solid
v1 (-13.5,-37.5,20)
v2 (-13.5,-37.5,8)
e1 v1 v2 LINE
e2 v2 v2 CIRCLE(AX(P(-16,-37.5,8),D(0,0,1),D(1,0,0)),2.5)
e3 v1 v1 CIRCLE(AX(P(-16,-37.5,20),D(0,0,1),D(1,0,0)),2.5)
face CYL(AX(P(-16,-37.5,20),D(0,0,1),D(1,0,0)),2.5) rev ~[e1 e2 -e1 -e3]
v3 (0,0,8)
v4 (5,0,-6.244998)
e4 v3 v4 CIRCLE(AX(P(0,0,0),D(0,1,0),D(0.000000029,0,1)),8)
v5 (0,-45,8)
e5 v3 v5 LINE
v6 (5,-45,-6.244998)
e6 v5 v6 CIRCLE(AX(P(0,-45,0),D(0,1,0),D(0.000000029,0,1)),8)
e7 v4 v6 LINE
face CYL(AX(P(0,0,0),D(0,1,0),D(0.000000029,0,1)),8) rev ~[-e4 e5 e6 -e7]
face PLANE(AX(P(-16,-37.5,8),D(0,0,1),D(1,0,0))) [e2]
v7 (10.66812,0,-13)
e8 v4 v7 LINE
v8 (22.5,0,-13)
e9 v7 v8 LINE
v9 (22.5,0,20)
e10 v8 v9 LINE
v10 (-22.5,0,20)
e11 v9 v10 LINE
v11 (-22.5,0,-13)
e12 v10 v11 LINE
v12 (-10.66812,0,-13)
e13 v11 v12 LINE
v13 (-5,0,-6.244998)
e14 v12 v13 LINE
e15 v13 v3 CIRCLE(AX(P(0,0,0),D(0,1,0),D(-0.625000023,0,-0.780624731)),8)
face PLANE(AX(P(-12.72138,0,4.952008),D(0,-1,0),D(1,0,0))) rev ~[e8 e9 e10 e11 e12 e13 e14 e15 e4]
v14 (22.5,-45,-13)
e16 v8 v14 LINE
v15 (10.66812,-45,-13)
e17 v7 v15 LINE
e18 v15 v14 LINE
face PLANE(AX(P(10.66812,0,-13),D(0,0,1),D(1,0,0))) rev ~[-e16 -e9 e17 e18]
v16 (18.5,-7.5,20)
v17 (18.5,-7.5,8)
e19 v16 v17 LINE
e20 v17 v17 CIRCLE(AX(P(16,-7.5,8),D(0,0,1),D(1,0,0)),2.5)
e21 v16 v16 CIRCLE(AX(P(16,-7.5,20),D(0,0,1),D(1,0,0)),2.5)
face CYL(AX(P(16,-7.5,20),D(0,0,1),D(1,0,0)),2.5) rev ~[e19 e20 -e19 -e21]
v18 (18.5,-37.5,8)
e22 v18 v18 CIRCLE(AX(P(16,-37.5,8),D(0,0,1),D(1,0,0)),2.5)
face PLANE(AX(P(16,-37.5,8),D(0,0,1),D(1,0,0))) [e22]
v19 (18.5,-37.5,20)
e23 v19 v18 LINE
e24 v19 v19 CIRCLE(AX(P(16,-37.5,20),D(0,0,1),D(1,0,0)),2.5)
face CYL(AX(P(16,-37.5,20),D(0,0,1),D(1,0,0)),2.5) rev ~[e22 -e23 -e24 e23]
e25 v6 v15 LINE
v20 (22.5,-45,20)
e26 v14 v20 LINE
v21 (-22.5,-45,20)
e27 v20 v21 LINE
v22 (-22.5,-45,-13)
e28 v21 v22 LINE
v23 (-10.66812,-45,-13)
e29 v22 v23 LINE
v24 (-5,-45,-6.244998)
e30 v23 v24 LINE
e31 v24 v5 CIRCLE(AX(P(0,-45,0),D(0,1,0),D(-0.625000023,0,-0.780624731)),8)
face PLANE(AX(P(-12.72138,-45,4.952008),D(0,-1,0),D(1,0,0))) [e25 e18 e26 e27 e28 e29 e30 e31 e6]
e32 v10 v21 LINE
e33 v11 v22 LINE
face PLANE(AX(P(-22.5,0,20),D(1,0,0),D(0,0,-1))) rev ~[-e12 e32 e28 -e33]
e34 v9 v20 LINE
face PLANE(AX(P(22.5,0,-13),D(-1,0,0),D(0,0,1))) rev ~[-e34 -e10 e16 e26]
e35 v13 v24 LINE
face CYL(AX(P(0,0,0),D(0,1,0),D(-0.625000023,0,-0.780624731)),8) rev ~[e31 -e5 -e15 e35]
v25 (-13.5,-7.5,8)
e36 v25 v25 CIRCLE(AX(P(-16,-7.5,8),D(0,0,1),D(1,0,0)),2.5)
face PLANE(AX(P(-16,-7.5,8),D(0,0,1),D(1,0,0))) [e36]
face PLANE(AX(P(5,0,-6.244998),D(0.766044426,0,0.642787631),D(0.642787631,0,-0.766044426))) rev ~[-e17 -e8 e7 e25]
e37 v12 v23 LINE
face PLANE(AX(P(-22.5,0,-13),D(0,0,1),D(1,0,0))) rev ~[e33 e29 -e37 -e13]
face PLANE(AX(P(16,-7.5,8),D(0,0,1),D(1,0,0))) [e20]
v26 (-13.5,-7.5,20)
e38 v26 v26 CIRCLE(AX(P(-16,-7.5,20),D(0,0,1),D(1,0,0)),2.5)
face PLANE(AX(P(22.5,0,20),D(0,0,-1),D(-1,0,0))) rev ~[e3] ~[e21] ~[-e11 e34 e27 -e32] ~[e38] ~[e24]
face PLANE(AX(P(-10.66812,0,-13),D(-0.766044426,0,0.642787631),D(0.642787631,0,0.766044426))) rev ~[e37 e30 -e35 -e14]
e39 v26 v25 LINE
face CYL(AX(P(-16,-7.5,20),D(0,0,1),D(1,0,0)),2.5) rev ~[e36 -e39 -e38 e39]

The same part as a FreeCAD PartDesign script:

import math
import FreeCAD as App
import Part
import Sketcher
from FreeCAD import Vector
Q = App.Units.Quantity

doc = App.newDocument("Part")
body = doc.addObject("PartDesign::Body", "Body")

sketch1 = body.newObject("Sketcher::SketchObject", "Sketch")
sketch1.AttachmentSupport = (doc.getObject("XZ_Plane"), [""])
sketch1.MapMode = "FlatFace"
sketch1.addGeometry(Part.LineSegment(Vector(-22, 20, 0), Vector(-22, -13, 0)), False)
sketch1.addGeometry(Part.LineSegment(Vector(-22, -13, 0), Vector(-11, -13, 0)), False)
sketch1.addGeometry(Part.LineSegment(Vector(-11, -13, 0), Vector(-5, -6, 0)), False)
sketch1.addGeometry(Part.ArcOfCircle(Part.Circle(Vector(0, 0, 0), Vector(0, 0, 1), 8), math.radians(90), math.radians(231)), False)
sketch1.addGeometry(Part.ArcOfCircle(Part.Circle(Vector(0, 0, 0), Vector(0, 0, 1), 8), math.radians(-51), math.radians(90)), False)
sketch1.addGeometry(Part.LineSegment(Vector(5, -6, 0), Vector(11, -13, 0)), False)
sketch1.addGeometry(Part.LineSegment(Vector(11, -13, 0), Vector(22, -13, 0)), False)
sketch1.addGeometry(Part.LineSegment(Vector(22, -13, 0), Vector(22, 20, 0)), False)
sketch1.addGeometry(Part.LineSegment(Vector(22, 20, 0), Vector(-22, 20, 0)), False)
sketch1.addConstraint(Sketcher.Constraint("Coincident", 0, 2, 1, 1))
sketch1.addConstraint(Sketcher.Constraint("Coincident", 1, 2, 2, 1))
sketch1.addConstraint(Sketcher.Constraint("Coincident", 2, 2, 3, 2))
sketch1.addConstraint(Sketcher.Constraint("Tangent", 3, 1, 4, 2))
sketch1.addConstraint(Sketcher.Constraint("Coincident", 4, 1, 5, 1))
sketch1.addConstraint(Sketcher.Constraint("Coincident", 5, 2, 6, 1))
sketch1.addConstraint(Sketcher.Constraint("Coincident", 6, 2, 7, 1))
sketch1.addConstraint(Sketcher.Constraint("Coincident", 7, 2, 8, 1))
sketch1.addConstraint(Sketcher.Constraint("Coincident", 8, 2, 0, 1))
sketch1.addConstraint(Sketcher.Constraint("Vertical", 0))
sketch1.addConstraint(Sketcher.Constraint("Horizontal", 1))
sketch1.addConstraint(Sketcher.Constraint("Horizontal", 6))
sketch1.addConstraint(Sketcher.Constraint("Vertical", 7))
sketch1.addConstraint(Sketcher.Constraint("Horizontal", 8))
sketch1.addConstraint(Sketcher.Constraint("Coincident", 3, 3, -1, 1))
sketch1.addConstraint(Sketcher.Constraint("Equal", 3, 4))
sketch1.addConstraint(Sketcher.Constraint("Symmetric", 1, 2, 5, 2, -2))
sketch1.addConstraint(Sketcher.Constraint("PointOnObject", 3, 1, -2))
sketch1.addConstraint(Sketcher.Constraint("Horizontal", 2, 2, 4, 1))
sketch1.addConstraint(Sketcher.Constraint("Equal", 1, 6))
sketch1.addConstraint(Sketcher.Constraint("Radius", 3, Q("8 mm")))
sketch1.addConstraint(Sketcher.Constraint("DistanceX", 8, 2, 8, 1, Q("45 mm")))
sketch1.addConstraint(Sketcher.Constraint("DistanceY", 0, 2, 0, 1, Q("33 mm")))
sketch1.addConstraint(Sketcher.Constraint("Angle", 2, Q("49.999998 deg")))
sketch1.addConstraint(Sketcher.Constraint("DistanceY", 0, 2, -1, 1, Q("13 mm")))
sketch1.addConstraint(Sketcher.Constraint("DistanceX", 2, 2, -1, 1, Q("5 mm")))
pad1 = body.newObject("PartDesign::Pad", "Pad")
pad1.Profile = sketch1
pad1.Length = 45

sketch2 = body.newObject("Sketcher::SketchObject", "Sketch001")
sketch2.AttachmentSupport = (doc.getObject("XY_Plane"), [""])
sketch2.MapMode = "FlatFace"
sketch2.AttachmentOffset = App.Placement(Vector(0, 0, 20), App.Rotation())
sketch2.addGeometry(Part.Circle(Vector(-16, -7.5, 0), Vector(0, 0, 1), 2.5), False)
sketch2.addGeometry(Part.Circle(Vector(16, -7.5, 0), Vector(0, 0, 1), 2.5), False)
sketch2.addGeometry(Part.Circle(Vector(16, -37.5, 0), Vector(0, 0, 1), 2.5), False)
sketch2.addGeometry(Part.Circle(Vector(-16, -37.5, 0), Vector(0, 0, 1), 2.5), False)
sketch2.addConstraint(Sketcher.Constraint("Equal", 0, 1))
sketch2.addConstraint(Sketcher.Constraint("Equal", 1, 2))
sketch2.addConstraint(Sketcher.Constraint("Equal", 2, 3))
sketch2.addConstraint(Sketcher.Constraint("Symmetric", 0, 3, 1, 3, -2))
sketch2.addConstraint(Sketcher.Constraint("Symmetric", 2, 3, 3, 3, -2))
sketch2.addConstraint(Sketcher.Constraint("Vertical", 1, 3, 2, 3))
sketch2.addConstraint(Sketcher.Constraint("Diameter", 0, Q("5 mm")))
sketch2.addConstraint(Sketcher.Constraint("DistanceX", 0, 3, -1, 1, Q("16 mm")))
sketch2.addConstraint(Sketcher.Constraint("DistanceY", 2, 3, 1, 3, Q("30 mm")))
sketch2.addConstraint(Sketcher.Constraint("DistanceY", 0, 3, -1, 1, Q("7.5 mm")))
pocket1 = body.newObject("PartDesign::Pocket", "Pocket")
pocket1.Profile = sketch2
pocket1.Length = 12

doc.recompute()
